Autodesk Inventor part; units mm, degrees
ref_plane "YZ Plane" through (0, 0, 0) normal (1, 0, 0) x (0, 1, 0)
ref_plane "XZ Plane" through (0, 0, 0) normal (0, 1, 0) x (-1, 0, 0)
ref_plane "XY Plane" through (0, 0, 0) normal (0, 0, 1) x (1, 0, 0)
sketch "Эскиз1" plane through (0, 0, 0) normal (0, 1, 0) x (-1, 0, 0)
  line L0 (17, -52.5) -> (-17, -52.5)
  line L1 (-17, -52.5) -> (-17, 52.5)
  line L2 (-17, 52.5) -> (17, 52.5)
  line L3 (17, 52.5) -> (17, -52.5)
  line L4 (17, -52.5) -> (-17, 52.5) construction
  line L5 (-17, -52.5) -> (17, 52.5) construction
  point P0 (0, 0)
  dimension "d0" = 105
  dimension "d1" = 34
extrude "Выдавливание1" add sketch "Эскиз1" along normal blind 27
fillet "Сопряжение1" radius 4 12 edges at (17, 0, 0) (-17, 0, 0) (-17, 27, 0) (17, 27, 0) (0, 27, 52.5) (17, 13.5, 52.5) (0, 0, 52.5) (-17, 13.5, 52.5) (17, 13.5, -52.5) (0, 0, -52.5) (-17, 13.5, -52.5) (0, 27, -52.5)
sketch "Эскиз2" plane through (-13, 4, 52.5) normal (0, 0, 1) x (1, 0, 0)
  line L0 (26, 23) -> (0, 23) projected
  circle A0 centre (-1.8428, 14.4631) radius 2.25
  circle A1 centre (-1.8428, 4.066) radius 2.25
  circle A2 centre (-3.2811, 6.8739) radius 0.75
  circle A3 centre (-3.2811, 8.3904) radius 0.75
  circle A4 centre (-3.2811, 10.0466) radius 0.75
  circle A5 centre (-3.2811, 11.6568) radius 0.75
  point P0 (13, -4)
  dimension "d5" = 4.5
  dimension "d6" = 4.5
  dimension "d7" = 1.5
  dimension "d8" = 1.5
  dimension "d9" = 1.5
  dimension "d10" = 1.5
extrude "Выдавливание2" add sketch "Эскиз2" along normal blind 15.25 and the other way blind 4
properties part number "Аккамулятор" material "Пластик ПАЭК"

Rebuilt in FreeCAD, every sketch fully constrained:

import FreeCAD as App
import Part
import Sketcher

V = App.Vector

doc = App.newDocument("Part")
body = doc.addObject("PartDesign::Body", "Body")

# Sketch on XZ plane
sketch1 = body.newObject("Sketcher::SketchObject", "Sketch")
sketch1.AttachmentSupport = (doc.getObject("XZ_Plane"), [""])
sketch1.MapMode = "FlatFace"
sketch1.addGeometry([
    Part.LineSegment(V(17, -52.5, 0), V(-17, -52.5, 0)),
    Part.LineSegment(V(-17, -52.5, 0), V(-17, 52.5, 0)),
    Part.LineSegment(V(-17, 52.5, 0), V(17, 52.5, 0)),
    Part.LineSegment(V(17, 52.5, 0), V(17, -52.5, 0)),
], False)
sketch1.addConstraint([
    Sketcher.Constraint("Coincident", 0, 2, 1, 1),
    Sketcher.Constraint("Coincident", 1, 2, 2, 1),
    Sketcher.Constraint("Coincident", 2, 2, 3, 1),
    Sketcher.Constraint("Coincident", 3, 2, 0, 1),
    Sketcher.Constraint("Horizontal", 0),
    Sketcher.Constraint("Vertical", 1),
    Sketcher.Constraint("Horizontal", 2),
    Sketcher.Constraint("Vertical", 3),
    Sketcher.Constraint("Symmetric", 0, 2, 2, 2, -1, 1),
    Sketcher.Constraint("DistanceX", 0, 2, 0, 1, 34.0),
    Sketcher.Constraint("DistanceY", 1, 1, 1, 2, 105.0),
])
pad1 = body.newObject("PartDesign::Pad", "Pad")
pad1.Profile = sketch1
pad1.Length = 27
pad1.Reversed = True
doc.recompute()

fillet = body.newObject("PartDesign::Fillet", "Fillet")
fillet.Base = (pad1, ["Edge1"])
fillet.UseAllEdges = True
fillet.Radius = 4

# Sketch on XY plane
sketch2 = body.newObject("Sketcher::SketchObject", "Sketch001")
sketch2.AttachmentSupport = (doc.getObject("XY_Plane"), [""])
sketch2.MapMode = "FlatFace"
sketch2.AttachmentOffset = App.Placement(V(0, 0, 52.5), App.Rotation())
sketch2.addGeometry([
    Part.Circle(V(-14.8428, 18.4631, 0), V(0, 0, 1), 2.25),  # 0
    Part.Circle(V(-14.8428, 8.066, 0), V(0, 0, 1), 2.25),  # 1
    Part.Circle(V(-16.2811, 10.8739, 0), V(0, 0, 1), 0.75),  # 2
    Part.Circle(V(-16.2811, 12.3904, 0), V(0, 0, 1), 0.75),  # 3
    Part.Circle(V(-16.2811, 14.0466, 0), V(0, 0, 1), 0.75),  # 4
    Part.Circle(V(-16.2811, 15.6568, 0), V(0, 0, 1), 0.75),  # 5
], False)
sketch2.addConstraint([
    Sketcher.Constraint("Equal", 0, 1),
    Sketcher.Constraint("Equal", 2, 3),
    Sketcher.Constraint("Equal", 3, 4),
    Sketcher.Constraint("Equal", 4, 5),
    Sketcher.Constraint("Vertical", 0, 3, 1, 3),
    Sketcher.Constraint("Vertical", 2, 3, 3, 3),
    Sketcher.Constraint("Vertical", 3, 3, 4, 3),
    Sketcher.Constraint("Vertical", 4, 3, 5, 3),
    Sketcher.Constraint("Diameter", 0, 4.5),
    Sketcher.Constraint("Diameter", 2, 1.5),
    Sketcher.Constraint("DistanceY", -1, 1, 0, 3, 18.463),
    Sketcher.Constraint("DistanceY", -1, 1, 1, 3, 8.066),
    Sketcher.Constraint("DistanceX", 2, 3, -1, 1, 16.281),
    Sketcher.Constraint("DistanceY", -1, 1, 2, 3, 10.874),
    Sketcher.Constraint("DistanceY", 2, 3, 5, 3, 4.783),
    Sketcher.Constraint("DistanceX", 0, 3, -1, 1, 14.8428),
    Sketcher.Constraint("DistanceY", -1, 1, 3, 3, 12.3904),
    Sketcher.Constraint("DistanceY", -1, 1, 4, 3, 14.0466),
])
pad2 = body.newObject("PartDesign::Pad", "Pad001")
pad2.Profile = sketch2
pad2.Type = "TwoLengths"
pad2.Length = 15.25
pad2.Length2 = 4

doc.recompute()
